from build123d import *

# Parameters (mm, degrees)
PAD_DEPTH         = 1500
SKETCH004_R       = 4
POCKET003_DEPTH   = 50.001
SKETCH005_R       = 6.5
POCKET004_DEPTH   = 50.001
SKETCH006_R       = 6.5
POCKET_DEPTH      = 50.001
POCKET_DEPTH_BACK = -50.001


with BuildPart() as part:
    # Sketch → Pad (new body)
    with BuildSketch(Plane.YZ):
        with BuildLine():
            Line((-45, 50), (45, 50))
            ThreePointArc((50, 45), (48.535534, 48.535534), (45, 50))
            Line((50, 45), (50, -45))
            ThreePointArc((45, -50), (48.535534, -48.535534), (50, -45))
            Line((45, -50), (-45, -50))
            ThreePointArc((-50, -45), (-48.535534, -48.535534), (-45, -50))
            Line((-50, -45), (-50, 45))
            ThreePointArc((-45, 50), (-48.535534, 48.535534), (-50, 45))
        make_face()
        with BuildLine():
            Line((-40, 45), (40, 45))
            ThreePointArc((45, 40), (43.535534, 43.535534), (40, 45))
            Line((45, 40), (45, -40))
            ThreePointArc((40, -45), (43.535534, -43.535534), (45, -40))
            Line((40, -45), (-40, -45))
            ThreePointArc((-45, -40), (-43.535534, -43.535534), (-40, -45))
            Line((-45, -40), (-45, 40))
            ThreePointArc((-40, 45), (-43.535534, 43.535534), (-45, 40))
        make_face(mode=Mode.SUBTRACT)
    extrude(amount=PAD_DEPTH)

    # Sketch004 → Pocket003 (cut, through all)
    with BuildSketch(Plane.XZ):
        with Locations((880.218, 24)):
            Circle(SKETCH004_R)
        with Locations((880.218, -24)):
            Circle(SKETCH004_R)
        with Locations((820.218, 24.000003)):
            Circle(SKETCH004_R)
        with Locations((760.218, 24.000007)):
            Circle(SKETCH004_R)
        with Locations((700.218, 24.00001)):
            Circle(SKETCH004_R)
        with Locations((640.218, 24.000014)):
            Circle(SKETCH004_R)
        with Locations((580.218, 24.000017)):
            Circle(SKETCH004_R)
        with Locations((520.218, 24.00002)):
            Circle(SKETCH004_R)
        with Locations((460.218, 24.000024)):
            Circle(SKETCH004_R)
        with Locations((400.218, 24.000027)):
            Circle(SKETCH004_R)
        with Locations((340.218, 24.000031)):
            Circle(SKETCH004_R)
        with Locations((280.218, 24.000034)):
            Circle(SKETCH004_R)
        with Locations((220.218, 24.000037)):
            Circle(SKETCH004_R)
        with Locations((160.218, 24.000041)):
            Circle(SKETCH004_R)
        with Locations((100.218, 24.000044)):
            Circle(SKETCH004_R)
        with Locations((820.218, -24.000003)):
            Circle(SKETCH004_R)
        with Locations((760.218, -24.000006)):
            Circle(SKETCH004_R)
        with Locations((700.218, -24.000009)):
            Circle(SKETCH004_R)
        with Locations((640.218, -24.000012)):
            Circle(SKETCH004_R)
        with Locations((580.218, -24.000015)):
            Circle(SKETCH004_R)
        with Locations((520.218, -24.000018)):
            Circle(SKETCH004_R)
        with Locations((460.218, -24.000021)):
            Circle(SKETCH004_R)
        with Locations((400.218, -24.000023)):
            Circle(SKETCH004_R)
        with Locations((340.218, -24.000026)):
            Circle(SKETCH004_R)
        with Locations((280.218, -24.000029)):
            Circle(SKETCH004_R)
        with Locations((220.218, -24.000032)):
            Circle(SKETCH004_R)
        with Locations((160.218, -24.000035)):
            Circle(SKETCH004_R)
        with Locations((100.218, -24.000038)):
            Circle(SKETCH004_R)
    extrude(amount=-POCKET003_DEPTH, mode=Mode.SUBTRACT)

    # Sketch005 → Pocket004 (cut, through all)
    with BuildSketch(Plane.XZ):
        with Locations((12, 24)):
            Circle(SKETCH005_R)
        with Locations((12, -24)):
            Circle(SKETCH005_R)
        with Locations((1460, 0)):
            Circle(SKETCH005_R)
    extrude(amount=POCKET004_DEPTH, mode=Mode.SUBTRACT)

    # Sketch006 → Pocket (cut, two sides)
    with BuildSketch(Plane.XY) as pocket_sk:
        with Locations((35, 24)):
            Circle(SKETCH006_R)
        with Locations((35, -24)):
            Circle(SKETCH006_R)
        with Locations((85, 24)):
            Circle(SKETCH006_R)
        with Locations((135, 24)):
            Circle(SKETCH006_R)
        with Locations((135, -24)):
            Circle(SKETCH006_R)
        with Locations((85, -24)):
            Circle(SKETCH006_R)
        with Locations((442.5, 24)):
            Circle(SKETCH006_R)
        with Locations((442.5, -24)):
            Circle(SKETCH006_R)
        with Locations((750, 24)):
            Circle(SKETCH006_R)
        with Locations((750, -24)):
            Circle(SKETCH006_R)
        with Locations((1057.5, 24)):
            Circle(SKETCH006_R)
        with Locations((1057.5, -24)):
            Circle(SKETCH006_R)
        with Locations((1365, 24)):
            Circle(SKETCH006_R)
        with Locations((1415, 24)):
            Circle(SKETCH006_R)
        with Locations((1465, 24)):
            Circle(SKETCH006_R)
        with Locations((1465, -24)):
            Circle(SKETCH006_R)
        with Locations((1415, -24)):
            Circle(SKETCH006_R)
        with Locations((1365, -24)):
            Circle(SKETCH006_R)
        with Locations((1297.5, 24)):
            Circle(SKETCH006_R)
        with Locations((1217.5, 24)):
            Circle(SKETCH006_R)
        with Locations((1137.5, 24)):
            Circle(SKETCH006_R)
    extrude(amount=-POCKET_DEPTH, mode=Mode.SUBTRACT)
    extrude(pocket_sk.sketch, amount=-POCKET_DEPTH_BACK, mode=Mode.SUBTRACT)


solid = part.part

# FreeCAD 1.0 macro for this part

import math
import FreeCAD as App
import Part
import Sketcher

doc = App.newDocument("Part")
body = doc.addObject("PartDesign::Body", "Body")

# Sketch on YZ plane
sketch1 = body.newObject("Sketcher::SketchObject", "Sketch")
sketch1.AttachmentSupport = (doc.getObject("YZ_Plane"), [""])
sketch1.MapMode = "FlatFace"
sketch1.addGeometry(Part.LineSegment(App.Vector(45, 50, 0), App.Vector(-45, 50, 0)), False)
sketch1.addGeometry(Part.ArcOfCircle(Part.Circle(App.Vector(-45, 45, 0), App.Vector(0, 0, 1), 5), math.radians(90), math.radians(180)), False)
sketch1.addGeometry(Part.LineSegment(App.Vector(-50, 45, 0), App.Vector(-50, -45, 0)), False)
sketch1.addGeometry(Part.ArcOfCircle(Part.Circle(App.Vector(-45, -45, 0), App.Vector(0, 0, 1), 5), math.radians(180), math.radians(270)), False)
sketch1.addGeometry(Part.LineSegment(App.Vector(-45, -50, 0), App.Vector(45, -50, 0)), False)
sketch1.addGeometry(Part.ArcOfCircle(Part.Circle(App.Vector(45, -45, 0), App.Vector(0, 0, 1), 5), math.radians(-90), math.radians(0)), False)
sketch1.addGeometry(Part.LineSegment(App.Vector(50, -45, 0), App.Vector(50, 45, 0)), False)
sketch1.addGeometry(Part.ArcOfCircle(Part.Circle(App.Vector(45, 45, 0), App.Vector(0, 0, 1), 5), math.radians(0), math.radians(90)), False)
sketch1.addGeometry(Part.LineSegment(App.Vector(-40, 45, 0), App.Vector(40, 45, 0)), False)
sketch1.addGeometry(Part.ArcOfCircle(Part.Circle(App.Vector(40, 40, 0), App.Vector(0, 0, 1), 5), math.radians(0), math.radians(90)), False)
sketch1.addGeometry(Part.LineSegment(App.Vector(45, 40, 0), App.Vector(45, -40, 0)), False)
sketch1.addGeometry(Part.ArcOfCircle(Part.Circle(App.Vector(40, -40, 0), App.Vector(0, 0, 1), 5), math.radians(-90), math.radians(0)), False)
sketch1.addGeometry(Part.LineSegment(App.Vector(40, -45, 0), App.Vector(-40, -45, 0)), False)
sketch1.addGeometry(Part.ArcOfCircle(Part.Circle(App.Vector(-40, -40, 0), App.Vector(0, 0, 1), 5), math.radians(180), math.radians(270)), False)
sketch1.addGeometry(Part.LineSegment(App.Vector(-45, -40, 0), App.Vector(-45, 40, 0)), False)
sketch1.addGeometry(Part.ArcOfCircle(Part.Circle(App.Vector(-40, 40, 0), App.Vector(0, 0, 1), 5), math.radians(90), math.radians(180)), False)
sketch1.addConstraint(Sketcher.Constraint("Tangent", 0, 2, 1, 1))
sketch1.addConstraint(Sketcher.Constraint("Tangent", 1, 2, 2, 1))
sketch1.addConstraint(Sketcher.Constraint("Tangent", 2, 2, 3, 1))
sketch1.addConstraint(Sketcher.Constraint("Tangent", 3, 2, 4, 1))
sketch1.addConstraint(Sketcher.Constraint("Tangent", 4, 2, 5, 1))
sketch1.addConstraint(Sketcher.Constraint("Tangent", 5, 2, 6, 1))
sketch1.addConstraint(Sketcher.Constraint("Tangent", 6, 2, 7, 1))
sketch1.addConstraint(Sketcher.Constraint("Tangent", 7, 2, 0, 1))
sketch1.addConstraint(Sketcher.Constraint("Tangent", 8, 2, 9, 2))
sketch1.addConstraint(Sketcher.Constraint("Tangent", 9, 1, 10, 1))
sketch1.addConstraint(Sketcher.Constraint("Tangent", 10, 2, 11, 2))
sketch1.addConstraint(Sketcher.Constraint("Tangent", 11, 1, 12, 1))
sketch1.addConstraint(Sketcher.Constraint("Tangent", 12, 2, 13, 2))
sketch1.addConstraint(Sketcher.Constraint("Tangent", 13, 1, 14, 1))
sketch1.addConstraint(Sketcher.Constraint("Tangent", 14, 2, 15, 2))
sketch1.addConstraint(Sketcher.Constraint("Tangent", 15, 1, 8, 1))
sketch1.addConstraint(Sketcher.Constraint("Horizontal", 0))
sketch1.addConstraint(Sketcher.Constraint("Vertical", 2))
sketch1.addConstraint(Sketcher.Constraint("Horizontal", 4))
sketch1.addConstraint(Sketcher.Constraint("Vertical", 6))
sketch1.addConstraint(Sketcher.Constraint("Horizontal", 8))
sketch1.addConstraint(Sketcher.Constraint("Vertical", 10))
sketch1.addConstraint(Sketcher.Constraint("Horizontal", 12))
sketch1.addConstraint(Sketcher.Constraint("Vertical", 14))
sketch1.addConstraint(Sketcher.Constraint("Equal", 1, 3))
sketch1.addConstraint(Sketcher.Constraint("Equal", 3, 5))
sketch1.addConstraint(Sketcher.Constraint("Equal", 5, 7))
sketch1.addConstraint(Sketcher.Constraint("Equal", 7, 9))
sketch1.addConstraint(Sketcher.Constraint("Equal", 9, 11))
sketch1.addConstraint(Sketcher.Constraint("Equal", 11, 13))
sketch1.addConstraint(Sketcher.Constraint("Equal", 13, 15))
sketch1.addConstraint(Sketcher.Constraint("Symmetric", 1, 3, 5, 3, -1, 1))
sketch1.addConstraint(Sketcher.Constraint("Symmetric", 9, 3, 13, 3, -1, 1))
sketch1.addConstraint(Sketcher.Constraint("Horizontal", 6, 2, 8, 2))
sketch1.addConstraint(Sketcher.Constraint("Vertical", 7, 2, 9, 1))
sketch1.addConstraint(Sketcher.Constraint("Equal", 4, 2))
sketch1.addConstraint(Sketcher.Constraint("Radius", 1, 5.0))
sketch1.addConstraint(Sketcher.Constraint("DistanceX", 0, 2, 0, 1, 90.0))
pad1 = body.newObject("PartDesign::Pad", "Pad")
pad1.Profile = sketch1
pad1.Length = 1500

# Sketch on XZ plane
sketch2 = body.newObject("Sketcher::SketchObject", "Sketch001")
sketch2.AttachmentSupport = (doc.getObject("XZ_Plane"), [""])
sketch2.MapMode = "FlatFace"
sketch2.addGeometry(Part.Circle(App.Vector(880.218, 24, 0), App.Vector(0, 0, 1), 4), False)
sketch2.addGeometry(Part.Circle(App.Vector(880.218, -24, 0), App.Vector(0, 0, 1), 4), False)
sketch2.addGeometry(Part.Circle(App.Vector(820.218, 24.000003, 0), App.Vector(0, 0, 1), 4), False)
sketch2.addGeometry(Part.Circle(App.Vector(760.218, 24.000007, 0), App.Vector(0, 0, 1), 4), False)
sketch2.addGeometry(Part.Circle(App.Vector(700.218, 24.00001, 0), App.Vector(0, 0, 1), 4), False)
sketch2.addGeometry(Part.Circle(App.Vector(640.218, 24.000014, 0), App.Vector(0, 0, 1), 4), False)
sketch2.addGeometry(Part.Circle(App.Vector(580.218, 24.000017, 0), App.Vector(0, 0, 1), 4), False)
sketch2.addGeometry(Part.Circle(App.Vector(520.218, 24.00002, 0), App.Vector(0, 0, 1), 4), False)
sketch2.addGeometry(Part.Circle(App.Vector(460.218, 24.000024, 0), App.Vector(0, 0, 1), 4), False)
sketch2.addGeometry(Part.Circle(App.Vector(400.218, 24.000027, 0), App.Vector(0, 0, 1), 4), False)
sketch2.addGeometry(Part.Circle(App.Vector(340.218, 24.000031, 0), App.Vector(0, 0, 1), 4), False)
sketch2.addGeometry(Part.Circle(App.Vector(280.218, 24.000034, 0), App.Vector(0, 0, 1), 4), False)
sketch2.addGeometry(Part.Circle(App.Vector(220.218, 24.000037, 0), App.Vector(0, 0, 1), 4), False)
sketch2.addGeometry(Part.Circle(App.Vector(160.218, 24.000041, 0), App.Vector(0, 0, 1), 4), False)
sketch2.addGeometry(Part.Circle(App.Vector(100.218, 24.000044, 0), App.Vector(0, 0, 1), 4), False)
sketch2.addGeometry(Part.Circle(App.Vector(820.218, -24.000003, 0), App.Vector(0, 0, 1), 4), False)
sketch2.addGeometry(Part.Circle(App.Vector(760.218, -24.000006, 0), App.Vector(0, 0, 1), 4), False)
sketch2.addGeometry(Part.Circle(App.Vector(700.218, -24.000009, 0), App.Vector(0, 0, 1), 4), False)
sketch2.addGeometry(Part.Circle(App.Vector(640.218, -24.000012, 0), App.Vector(0, 0, 1), 4), False)
sketch2.addGeometry(Part.Circle(App.Vector(580.218, -24.000015, 0), App.Vector(0, 0, 1), 4), False)
sketch2.addGeometry(Part.Circle(App.Vector(520.218, -24.000018, 0), App.Vector(0, 0, 1), 4), False)
sketch2.addGeometry(Part.Circle(App.Vector(460.218, -24.000021, 0), App.Vector(0, 0, 1), 4), False)
sketch2.addGeometry(Part.Circle(App.Vector(400.218, -24.000023, 0), App.Vector(0, 0, 1), 4), False)
sketch2.addGeometry(Part.Circle(App.Vector(340.218, -24.000026, 0), App.Vector(0, 0, 1), 4), False)
sketch2.addGeometry(Part.Circle(App.Vector(280.218, -24.000029, 0), App.Vector(0, 0, 1), 4), False)
sketch2.addGeometry(Part.Circle(App.Vector(220.218, -24.000032, 0), App.Vector(0, 0, 1), 4), False)
sketch2.addGeometry(Part.Circle(App.Vector(160.218, -24.000035, 0), App.Vector(0, 0, 1), 4), False)
sketch2.addGeometry(Part.Circle(App.Vector(100.218, -24.000038, 0), App.Vector(0, 0, 1), 4), False)
sketch2.addConstraint(Sketcher.Constraint("Equal", 0, 1))
sketch2.addConstraint(Sketcher.Constraint("Equal", 1, 2))
sketch2.addConstraint(Sketcher.Constraint("Equal", 2, 3))
sketch2.addConstraint(Sketcher.Constraint("Equal", 3, 4))
sketch2.addConstraint(Sketcher.Constraint("Equal", 4, 5))
sketch2.addConstraint(Sketcher.Constraint("Equal", 5, 6))
sketch2.addConstraint(Sketcher.Constraint("Equal", 6, 7))
sketch2.addConstraint(Sketcher.Constraint("Equal", 7, 8))
sketch2.addConstraint(Sketcher.Constraint("Equal", 8, 9))
sketch2.addConstraint(Sketcher.Constraint("Equal", 9, 10))
sketch2.addConstraint(Sketcher.Constraint("Equal", 10, 11))
sketch2.addConstraint(Sketcher.Constraint("Equal", 11, 12))
sketch2.addConstraint(Sketcher.Constraint("Equal", 12, 13))
sketch2.addConstraint(Sketcher.Constraint("Equal", 13, 14))
sketch2.addConstraint(Sketcher.Constraint("Equal", 14, 15))
sketch2.addConstraint(Sketcher.Constraint("Equal", 15, 16))
sketch2.addConstraint(Sketcher.Constraint("Equal", 16, 17))
sketch2.addConstraint(Sketcher.Constraint("Equal", 17, 18))
sketch2.addConstraint(Sketcher.Constraint("Equal", 18, 19))
sketch2.addConstraint(Sketcher.Constraint("Equal", 19, 20))
sketch2.addConstraint(Sketcher.Constraint("Equal", 20, 21))
sketch2.addConstraint(Sketcher.Constraint("Equal", 21, 22))
sketch2.addConstraint(Sketcher.Constraint("Equal", 22, 23))
sketch2.addConstraint(Sketcher.Constraint("Equal", 23, 24))
sketch2.addConstraint(Sketcher.Constraint("Equal", 24, 25))
sketch2.addConstraint(Sketcher.Constraint("Equal", 25, 26))
sketch2.addConstraint(Sketcher.Constraint("Equal", 26, 27))
sketch2.addConstraint(Sketcher.Constraint("Symmetric", 0, 3, 1, 3, -1))
sketch2.addConstraint(Sketcher.Constraint("Symmetric", 2, 3, 15, 3, -1))
sketch2.addConstraint(Sketcher.Constraint("Symmetric", 3, 3, 16, 3, -1))
sketch2.addConstraint(Sketcher.Constraint("Symmetric", 4, 3, 17, 3, -1))
sketch2.addConstraint(Sketcher.Constraint("Symmetric", 5, 3, 18, 3, -1))
sketch2.addConstraint(Sketcher.Constraint("Symmetric", 6, 3, 19, 3, -1))
sketch2.addConstraint(Sketcher.Constraint("Symmetric", 7, 3, 20, 3, -1))
sketch2.addConstraint(Sketcher.Constraint("Symmetric", 8, 3, 21, 3, -1))
sketch2.addConstraint(Sketcher.Constraint("Symmetric", 9, 3, 22, 3, -1))
sketch2.addConstraint(Sketcher.Constraint("Symmetric", 10, 3, 23, 3, -1))
sketch2.addConstraint(Sketcher.Constraint("Symmetric", 11, 3, 24, 3, -1))
sketch2.addConstraint(Sketcher.Constraint("Symmetric", 12, 3, 25, 3, -1))
sketch2.addConstraint(Sketcher.Constraint("Symmetric", 13, 3, 26, 3, -1))
sketch2.addConstraint(Sketcher.Constraint("Symmetric", 14, 3, 27, 3, -1))
sketch2.addConstraint(Sketcher.Constraint("Horizontal", 21, 3, 22, 3))
sketch2.addConstraint(Sketcher.Constraint("Diameter", 0, 8.0))
sketch2.addConstraint(Sketcher.Constraint("DistanceY", -1, 1, 0, 3, 24.0))
sketch2.addConstraint(Sketcher.Constraint("DistanceX", 2, 3, 0, 3, 60.0))
sketch2.addConstraint(Sketcher.Constraint("DistanceX", 3, 3, 2, 3, 60.0))
sketch2.addConstraint(Sketcher.Constraint("DistanceX", 4, 3, 3, 3, 60.0))
sketch2.addConstraint(Sketcher.Constraint("DistanceX", 5, 3, 4, 3, 60.0))
sketch2.addConstraint(Sketcher.Constraint("DistanceX", 6, 3, 5, 3, 60.0))
sketch2.addConstraint(Sketcher.Constraint("DistanceX", 7, 3, 6, 3, 60.0))
sketch2.addConstraint(Sketcher.Constraint("DistanceX", 8, 3, 7, 3, 60.0))
sketch2.addConstraint(Sketcher.Constraint("DistanceX", 9, 3, 8, 3, 60.0))
sketch2.addConstraint(Sketcher.Constraint("DistanceX", 10, 3, 9, 3, 60.0))
sketch2.addConstraint(Sketcher.Constraint("DistanceX", 11, 3, 10, 3, 60.0))
sketch2.addConstraint(Sketcher.Constraint("DistanceX", 12, 3, 11, 3, 60.0))
sketch2.addConstraint(Sketcher.Constraint("DistanceX", 13, 3, 12, 3, 60.0))
sketch2.addConstraint(Sketcher.Constraint("DistanceX", 14, 3, 13, 3, 60.0))
sketch2.addConstraint(Sketcher.Constraint("DistanceX", -1, 1, 0, 3, 880.218))
sketch2.addConstraint(Sketcher.Constraint("DistanceY", -1, 1, 4, 3, 24.00001))
sketch2.addConstraint(Sketcher.Constraint("DistanceY", -1, 1, 7, 3, 24.00002))
sketch2.addConstraint(Sketcher.Constraint("DistanceY", -1, 1, 10, 3, 24.000031))
sketch2.addConstraint(Sketcher.Constraint("DistanceY", -1, 1, 13, 3, 24.000041))
sketch2.addConstraint(Sketcher.Constraint("DistanceY", 21, 3, -1, 1, 24.000021))
sketch2.addConstraint(Sketcher.Constraint("DistanceY", 24, 3, -1, 1, 24.000029))
sketch2.addConstraint(Sketcher.Constraint("DistanceY", 27, 3, -1, 1, 24.000038))
sketch2.addConstraint(Sketcher.Constraint("DistanceY", 15, 3, 3, 3, 48.00001))
sketch2.addConstraint(Sketcher.Constraint("DistanceY", 18, 3, 6, 3, 48.000029))
sketch2.addConstraint(Sketcher.Constraint("DistanceY", 25, 3, 12, 3, 48.000069))
sketch2.addConstraint(Sketcher.Constraint("DistanceY", -1, 1, 2, 3, 24.000003))
sketch2.addConstraint(Sketcher.Constraint("DistanceY", -1, 1, 5, 3, 24.000014))
pocket1 = body.newObject("PartDesign::Pocket", "Pocket")
pocket1.Profile = sketch2
pocket1.Type = "ThroughAll"

# Sketch on XZ plane
sketch3 = body.newObject("Sketcher::SketchObject", "Sketch002")
sketch3.AttachmentSupport = (doc.getObject("XZ_Plane"), [""])
sketch3.MapMode = "FlatFace"
sketch3.addGeometry(Part.Circle(App.Vector(12, 24, 0), App.Vector(0, 0, 1), 6), False)
sketch3.addGeometry(Part.Circle(App.Vector(12, -24, 0), App.Vector(0, 0, 1), 6), False)
sketch3.addGeometry(Part.Circle(App.Vector(1460, 0, 0), App.Vector(0, 0, 1), 6), False)
sketch3.addConstraint(Sketcher.Constraint("Equal", 0, 1))
sketch3.addConstraint(Sketcher.Constraint("Equal", 1, 2))
sketch3.addConstraint(Sketcher.Constraint("Symmetric", 0, 3, 1, 3, -1))
sketch3.addConstraint(Sketcher.Constraint("PointOnObject", 2, 3, -1))
sketch3.addConstraint(Sketcher.Constraint("Diameter", 0, 13.0))
sketch3.addConstraint(Sketcher.Constraint("DistanceX", -1, 1, 0, 3, 12.0))
sketch3.addConstraint(Sketcher.Constraint("DistanceY", -1, 1, 0, 3, 24.0))
sketch3.addConstraint(Sketcher.Constraint("DistanceX", -1, 1, 2, 3, 1460.0))
pocket2 = body.newObject("PartDesign::Pocket", "Pocket001")
pocket2.Profile = sketch3
pocket2.Type = "ThroughAll"
pocket2.Reversed = True

# Sketch on XY plane
sketch4 = body.newObject("Sketcher::SketchObject", "Sketch003")
sketch4.AttachmentSupport = (doc.getObject("XY_Plane"), [""])
sketch4.MapMode = "FlatFace"
sketch4.addGeometry(Part.Circle(App.Vector(35, 24, 0), App.Vector(0, 0, 1), 6), False)
sketch4.addGeometry(Part.Circle(App.Vector(35, -24, 0), App.Vector(0, 0, 1), 6), False)
sketch4.addGeometry(Part.Circle(App.Vector(85, 24, 0), App.Vector(0, 0, 1), 6), False)
sketch4.addGeometry(Part.Circle(App.Vector(135, 24, 0), App.Vector(0, 0, 1), 6), False)
sketch4.addGeometry(Part.Circle(App.Vector(135, -24, 0), App.Vector(0, 0, 1), 6), False)
sketch4.addGeometry(Part.Circle(App.Vector(85, -24, 0), App.Vector(0, 0, 1), 6), False)
sketch4.addGeometry(Part.Circle(App.Vector(442, 24, 0), App.Vector(0, 0, 1), 6), False)
sketch4.addGeometry(Part.Circle(App.Vector(442, -24, 0), App.Vector(0, 0, 1), 6), False)
sketch4.addGeometry(Part.Circle(App.Vector(750, 24, 0), App.Vector(0, 0, 1), 6), False)
sketch4.addGeometry(Part.Circle(App.Vector(750, -24, 0), App.Vector(0, 0, 1), 6), False)
sketch4.addGeometry(Part.Circle(App.Vector(1058, 24, 0), App.Vector(0, 0, 1), 6), False)
sketch4.addGeometry(Part.Circle(App.Vector(1058, -24, 0), App.Vector(0, 0, 1), 6), False)
sketch4.addGeometry(Part.Circle(App.Vector(1365, 24, 0), App.Vector(0, 0, 1), 6), False)
sketch4.addGeometry(Part.Circle(App.Vector(1415, 24, 0), App.Vector(0, 0, 1), 6), False)
sketch4.addGeometry(Part.Circle(App.Vector(1465, 24, 0), App.Vector(0, 0, 1), 6), False)
sketch4.addGeometry(Part.Circle(App.Vector(1465, -24, 0), App.Vector(0, 0, 1), 6), False)
sketch4.addGeometry(Part.Circle(App.Vector(1415, -24, 0), App.Vector(0, 0, 1), 6), False)
sketch4.addGeometry(Part.Circle(App.Vector(1365, -24, 0), App.Vector(0, 0, 1), 6), False)
sketch4.addGeometry(Part.Circle(App.Vector(1298, 24, 0), App.Vector(0, 0, 1), 6), False)
sketch4.addGeometry(Part.Circle(App.Vector(1218, 24, 0), App.Vector(0, 0, 1), 6), False)
sketch4.addGeometry(Part.Circle(App.Vector(1138, 24, 0), App.Vector(0, 0, 1), 6), False)
sketch4.addConstraint(Sketcher.Constraint("Equal", 0, 1))
sketch4.addConstraint(Sketcher.Constraint("Equal", 1, 2))
sketch4.addConstraint(Sketcher.Constraint("Equal", 2, 3))
sketch4.addConstraint(Sketcher.Constraint("Equal", 3, 4))
sketch4.addConstraint(Sketcher.Constraint("Equal", 4, 5))
sketch4.addConstraint(Sketcher.Constraint("Equal", 5, 6))
sketch4.addConstraint(Sketcher.Constraint("Equal", 6, 7))
sketch4.addConstraint(Sketcher.Constraint("Equal", 7, 8))
sketch4.addConstraint(Sketcher.Constraint("Equal", 8, 9))
sketch4.addConstraint(Sketcher.Constraint("Equal", 9, 10))
sketch4.addConstraint(Sketcher.Constraint("Equal", 10, 11))
sketch4.addConstraint(Sketcher.Constraint("Equal", 11, 12))
sketch4.addConstraint(Sketcher.Constraint("Equal", 12, 13))
sketch4.addConstraint(Sketcher.Constraint("Equal", 13, 14))
sketch4.addConstraint(Sketcher.Constraint("Equal", 14, 15))
sketch4.addConstraint(Sketcher.Constraint("Equal", 15, 16))
sketch4.addConstraint(Sketcher.Constraint("Equal", 16, 17))
sketch4.addConstraint(Sketcher.Constraint("Equal", 17, 18))
sketch4.addConstraint(Sketcher.Constraint("Equal", 18, 19))
sketch4.addConstraint(Sketcher.Constraint("Equal", 19, 20))
sketch4.addConstraint(Sketcher.Constraint("Symmetric", 0, 3, 1, 3, -1))
sketch4.addConstraint(Sketcher.Constraint("Symmetric", 3, 3, 4, 3, -1))
sketch4.addConstraint(Sketcher.Constraint("Symmetric", 2, 3, 5, 3, -1))
sketch4.addConstraint(Sketcher.Constraint("Symmetric", 6, 3, 7, 3, -1))
sketch4.addConstraint(Sketcher.Constraint("Symmetric", 8, 3, 9, 3, -1))
sketch4.addConstraint(Sketcher.Constraint("Symmetric", 10, 3, 11, 3, -1))
sketch4.addConstraint(Sketcher.Constraint("Symmetric", 14, 3, 15, 3, -1))
sketch4.addConstraint(Sketcher.Constraint("Symmetric", 13, 3, 16, 3, -1))
sketch4.addConstraint(Sketcher.Constraint("Symmetric", 12, 3, 17, 3, -1))
sketch4.addConstraint(Sketcher.Constraint("Horizontal", 0, 3, 2, 3))
sketch4.addConstraint(Sketcher.Constraint("Horizontal", 2, 3, 3, 3))
sketch4.addConstraint(Sketcher.Constraint("Horizontal", 3, 3, 6, 3))
sketch4.addConstraint(Sketcher.Constraint("Horizontal", 6, 3, 8, 3))
sketch4.addConstraint(Sketcher.Constraint("Horizontal", 8, 3, 10, 3))
sketch4.addConstraint(Sketcher.Constraint("Horizontal", 10, 3, 12, 3))
sketch4.addConstraint(Sketcher.Constraint("Horizontal", 12, 3, 13, 3))
sketch4.addConstraint(Sketcher.Constraint("Horizontal", 13, 3, 14, 3))
sketch4.addConstraint(Sketcher.Constraint("Horizontal", 14, 3, 18, 3))
sketch4.addConstraint(Sketcher.Constraint("Horizontal", 18, 3, 19, 3))
sketch4.addConstraint(Sketcher.Constraint("Horizontal", 19, 3, 20, 3))
sketch4.addConstraint(Sketcher.Constraint("Diameter", 0, 13.0))
sketch4.addConstraint(Sketcher.Constraint("DistanceX", -1, 1, 0, 3, 35.0))
sketch4.addConstraint(Sketcher.Constraint("DistanceY", -1, 1, 0, 3, 24.0))
sketch4.addConstraint(Sketcher.Constraint("DistanceX", -1, 1, 2, 3, 85.0))
sketch4.addConstraint(Sketcher.Constraint("DistanceX", -1, 1, 3, 3, 135.0))
sketch4.addConstraint(Sketcher.Constraint("DistanceX", -1, 1, 8, 3, 750.0))
sketch4.addConstraint(Sketcher.Constraint("DistanceX", -1, 1, 12, 3, 1365.0))
sketch4.addConstraint(Sketcher.Constraint("DistanceX", -1, 1, 13, 3, 1415.0))
sketch4.addConstraint(Sketcher.Constraint("DistanceX", -1, 1, 14, 3, 1465.0))
sketch4.addConstraint(Sketcher.Constraint("DistanceX", 6, 3, 10, 3, 615.0))
sketch4.addConstraint(Sketcher.Constraint("DistanceX", 19, 3, 18, 3, 80.0))
sketch4.addConstraint(Sketcher.Constraint("DistanceX", 10, 3, 19, 3, 160.0))
sketch4.addConstraint(Sketcher.Constraint("DistanceX", 10, 3, 20, 3, 80.0))
sketch4.addConstraint(Sketcher.Constraint("DistanceX", -1, 1, 6, 3, 442.5))
pocket3 = body.newObject("PartDesign::Pocket", "Pocket002")
pocket3.Profile = sketch4
pocket3.Type = "ThroughAll"
pocket3.Midplane = True

doc.recompute()
